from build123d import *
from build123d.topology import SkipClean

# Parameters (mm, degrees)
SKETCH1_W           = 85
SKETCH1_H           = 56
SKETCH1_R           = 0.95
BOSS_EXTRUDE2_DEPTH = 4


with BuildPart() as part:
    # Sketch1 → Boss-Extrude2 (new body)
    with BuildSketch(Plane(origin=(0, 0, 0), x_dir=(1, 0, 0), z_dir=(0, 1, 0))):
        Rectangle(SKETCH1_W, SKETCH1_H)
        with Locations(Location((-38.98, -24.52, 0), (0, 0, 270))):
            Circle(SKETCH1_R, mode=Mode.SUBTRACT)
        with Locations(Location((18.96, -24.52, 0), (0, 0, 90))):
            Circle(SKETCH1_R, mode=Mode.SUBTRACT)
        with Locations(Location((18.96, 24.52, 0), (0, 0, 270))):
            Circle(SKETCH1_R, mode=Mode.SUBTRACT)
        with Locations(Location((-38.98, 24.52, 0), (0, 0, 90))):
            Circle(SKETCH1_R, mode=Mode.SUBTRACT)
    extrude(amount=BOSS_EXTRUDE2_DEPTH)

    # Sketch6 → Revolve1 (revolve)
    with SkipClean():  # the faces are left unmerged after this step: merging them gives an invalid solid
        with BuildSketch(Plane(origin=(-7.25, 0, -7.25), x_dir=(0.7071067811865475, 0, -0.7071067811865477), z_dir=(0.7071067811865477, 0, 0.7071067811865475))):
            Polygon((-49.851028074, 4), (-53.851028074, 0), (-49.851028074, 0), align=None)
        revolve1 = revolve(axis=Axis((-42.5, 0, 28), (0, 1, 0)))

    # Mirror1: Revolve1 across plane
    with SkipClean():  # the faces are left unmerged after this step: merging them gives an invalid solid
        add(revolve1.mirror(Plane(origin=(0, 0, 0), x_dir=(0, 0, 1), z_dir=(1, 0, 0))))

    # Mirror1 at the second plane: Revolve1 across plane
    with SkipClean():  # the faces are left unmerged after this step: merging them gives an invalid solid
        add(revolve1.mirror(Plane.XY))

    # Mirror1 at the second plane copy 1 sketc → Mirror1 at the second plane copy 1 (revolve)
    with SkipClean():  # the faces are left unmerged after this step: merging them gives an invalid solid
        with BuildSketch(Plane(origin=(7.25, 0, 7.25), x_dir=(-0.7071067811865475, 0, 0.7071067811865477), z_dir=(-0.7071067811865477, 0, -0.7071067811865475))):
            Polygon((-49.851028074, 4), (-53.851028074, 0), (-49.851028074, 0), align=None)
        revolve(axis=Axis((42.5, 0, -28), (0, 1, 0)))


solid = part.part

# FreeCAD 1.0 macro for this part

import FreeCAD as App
import Part
import Sketcher
from FreeCAD import Vector
Q = App.Units.Quantity

doc = App.newDocument("Part")
body = doc.addObject("PartDesign::Body", "Body")

# Sketch on XZ plane
sketch1 = body.newObject("Sketcher::SketchObject", "Sketch")
sketch1.AttachmentSupport = (doc.getObject("XZ_Plane"), [""])
sketch1.MapMode = "FlatFace"
sketch1.addGeometry([
    Part.LineSegment(Vector(-42.5, -28, 0), Vector(-42.5, 28, 0)),  # 0
    Part.LineSegment(Vector(-42.5, 28, 0), Vector(42.5, 28, 0)),  # 1
    Part.LineSegment(Vector(42.5, 28, 0), Vector(42.5, -28, 0)),  # 2
    Part.LineSegment(Vector(42.5, -28, 0), Vector(-42.5, -28, 0)),  # 3
    Part.Circle(Vector(-39, 24.5, 0), Vector(0, 0, 1), 0.9),  # 4
    Part.Circle(Vector(19, 24.5, 0), Vector(0, 0, 1), 0.9),  # 5
    Part.Circle(Vector(-39, -24.5, 0), Vector(0, 0, 1), 0.9),  # 6
    Part.Circle(Vector(19, -24.5, 0), Vector(0, 0, 1), 0.9),  # 7
], False)
sketch1.addConstraint([
    Sketcher.Constraint("Coincident", 0, 2, 1, 1),
    Sketcher.Constraint("Coincident", 1, 2, 2, 1),
    Sketcher.Constraint("Coincident", 2, 2, 3, 1),
    Sketcher.Constraint("Coincident", 3, 2, 0, 1),
    Sketcher.Constraint("Vertical", 0),
    Sketcher.Constraint("Horizontal", 1),
    Sketcher.Constraint("Vertical", 2),
    Sketcher.Constraint("Horizontal", 3),
    Sketcher.Constraint("Equal", 4, 5),
    Sketcher.Constraint("Equal", 5, 6),
    Sketcher.Constraint("Equal", 6, 7),
    Sketcher.Constraint("Symmetric", 0, 2, 2, 2, -1, 1),
    Sketcher.Constraint("Symmetric", 4, 3, 6, 3, -1),
    Sketcher.Constraint("Symmetric", 5, 3, 7, 3, -1),
    Sketcher.Constraint("Horizontal", 4, 3, 5, 3),
    Sketcher.Constraint("Diameter", 4, Q("1.9 mm")),
    Sketcher.Constraint("DistanceX", 1, 1, 1, 2, Q("85 mm")),
    Sketcher.Constraint("DistanceY", 0, 1, 0, 2, Q("56 mm")),
    Sketcher.Constraint("DistanceX", 4, 3, -1, 1, Q("38.98 mm")),
    Sketcher.Constraint("DistanceY", -1, 1, 4, 3, Q("24.52 mm")),
    Sketcher.Constraint("DistanceX", -1, 1, 5, 3, Q("18.96 mm")),
])
pad1 = body.newObject("PartDesign::Pad", "Pad")
pad1.Profile = sketch1
pad1.Length = 4
pad1.Reversed = True

# Sketch on an angled plane
sketch2 = body.newObject("Sketcher::SketchObject", "Sketch001")
sketch2.Placement = App.Placement(Vector(-7.25, 0, -7.25), App.Rotation(Vector(0.707106781, 0, -0.707106781), Vector(0, 0.999999999, 0), Vector(0.707106781, 0, 0.707106781), "ZXY"))
sketch2.addGeometry([
    Part.LineSegment(Vector(-49.9, 4, 0), Vector(-53.9, 0, 0)),
    Part.LineSegment(Vector(-53.9, 0, 0), Vector(-49.9, 0, 0)),
    Part.LineSegment(Vector(-49.9, 0, 0), Vector(-49.9, 4, 0)),
], False)
sketch2.addGeometry(Part.LineSegment(Vector(-49.9, 0, 0), Vector(-49.9, 4, 0)), True)  # axis
sketch2.addConstraint([
    Sketcher.Constraint("Coincident", 0, 2, 1, 1),
    Sketcher.Constraint("Coincident", 1, 2, 2, 1),
    Sketcher.Constraint("Coincident", 2, 2, 0, 1),
    Sketcher.Constraint("Horizontal", 1),
    Sketcher.Constraint("Vertical", 2),
    Sketcher.Constraint("Vertical", 3),
    Sketcher.Constraint("Coincident", 3, 1, 1, 2),
    Sketcher.Constraint("PointOnObject", 0, 2, -1),
    Sketcher.Constraint("Equal", 1, 2),
    Sketcher.Constraint("Equal", 2, 3),
    Sketcher.Constraint("DistanceX", 1, 1, 1, 2, Q("4 mm")),
    Sketcher.Constraint("DistanceX", 0, 2, -1, 1, Q("53.851028 mm")),
])
revolution = body.newObject("PartDesign::Revolution", "Revolution")
revolution.Profile = sketch2
revolution.ReferenceAxis = (sketch2, ["Axis0"])
revolution.Angle = 360
doc.recompute()

mirrored = body.newObject("PartDesign::Mirrored", "Mirrored")
mirrored.Originals = [revolution]
mirrored.MirrorPlane = (doc.getObject("YZ_Plane"), [""])
body.Tip = mirrored
doc.recompute()

mirrored2 = body.newObject("PartDesign::Mirrored", "Mirrored001")
mirrored2.Originals = [revolution]
mirrored2.MirrorPlane = (doc.getObject("XY_Plane"), [""])
body.Tip = mirrored2

# Sketch on an angled plane
sketch3 = body.newObject("Sketcher::SketchObject", "Sketch002")
sketch3.Placement = App.Placement(Vector(7.25, 0, 7.25), App.Rotation(Vector(-0.707106781, 0, 0.707106781), Vector(0, 0.999999999, 0), Vector(-0.707106781, 0, -0.707106781), "ZXY"))
sketch3.addGeometry([
    Part.LineSegment(Vector(-49.9, 4, 0), Vector(-53.9, 0, 0)),
    Part.LineSegment(Vector(-53.9, 0, 0), Vector(-49.9, 0, 0)),
    Part.LineSegment(Vector(-49.9, 0, 0), Vector(-49.9, 4, 0)),
], False)
sketch3.addGeometry(Part.LineSegment(Vector(-49.9, 0, 0), Vector(-49.9, 4, 0)), True)  # axis
sketch3.addConstraint([
    Sketcher.Constraint("Coincident", 0, 2, 1, 1),
    Sketcher.Constraint("Coincident", 1, 2, 2, 1),
    Sketcher.Constraint("Coincident", 2, 2, 0, 1),
    Sketcher.Constraint("Horizontal", 1),
    Sketcher.Constraint("Vertical", 2),
    Sketcher.Constraint("Vertical", 3),
    Sketcher.Constraint("Coincident", 3, 1, 1, 2),
    Sketcher.Constraint("PointOnObject", 0, 2, -1),
    Sketcher.Constraint("Equal", 1, 2),
    Sketcher.Constraint("Equal", 2, 3),
    Sketcher.Constraint("DistanceX", 1, 1, 1, 2, Q("4 mm")),
    Sketcher.Constraint("DistanceX", 0, 2, -1, 1, Q("53.851028 mm")),
])
revolution2 = body.newObject("PartDesign::Revolution", "Revolution001")
revolution2.Profile = sketch3
revolution2.ReferenceAxis = (sketch3, ["Axis0"])
revolution2.Angle = 360

doc.recompute()
